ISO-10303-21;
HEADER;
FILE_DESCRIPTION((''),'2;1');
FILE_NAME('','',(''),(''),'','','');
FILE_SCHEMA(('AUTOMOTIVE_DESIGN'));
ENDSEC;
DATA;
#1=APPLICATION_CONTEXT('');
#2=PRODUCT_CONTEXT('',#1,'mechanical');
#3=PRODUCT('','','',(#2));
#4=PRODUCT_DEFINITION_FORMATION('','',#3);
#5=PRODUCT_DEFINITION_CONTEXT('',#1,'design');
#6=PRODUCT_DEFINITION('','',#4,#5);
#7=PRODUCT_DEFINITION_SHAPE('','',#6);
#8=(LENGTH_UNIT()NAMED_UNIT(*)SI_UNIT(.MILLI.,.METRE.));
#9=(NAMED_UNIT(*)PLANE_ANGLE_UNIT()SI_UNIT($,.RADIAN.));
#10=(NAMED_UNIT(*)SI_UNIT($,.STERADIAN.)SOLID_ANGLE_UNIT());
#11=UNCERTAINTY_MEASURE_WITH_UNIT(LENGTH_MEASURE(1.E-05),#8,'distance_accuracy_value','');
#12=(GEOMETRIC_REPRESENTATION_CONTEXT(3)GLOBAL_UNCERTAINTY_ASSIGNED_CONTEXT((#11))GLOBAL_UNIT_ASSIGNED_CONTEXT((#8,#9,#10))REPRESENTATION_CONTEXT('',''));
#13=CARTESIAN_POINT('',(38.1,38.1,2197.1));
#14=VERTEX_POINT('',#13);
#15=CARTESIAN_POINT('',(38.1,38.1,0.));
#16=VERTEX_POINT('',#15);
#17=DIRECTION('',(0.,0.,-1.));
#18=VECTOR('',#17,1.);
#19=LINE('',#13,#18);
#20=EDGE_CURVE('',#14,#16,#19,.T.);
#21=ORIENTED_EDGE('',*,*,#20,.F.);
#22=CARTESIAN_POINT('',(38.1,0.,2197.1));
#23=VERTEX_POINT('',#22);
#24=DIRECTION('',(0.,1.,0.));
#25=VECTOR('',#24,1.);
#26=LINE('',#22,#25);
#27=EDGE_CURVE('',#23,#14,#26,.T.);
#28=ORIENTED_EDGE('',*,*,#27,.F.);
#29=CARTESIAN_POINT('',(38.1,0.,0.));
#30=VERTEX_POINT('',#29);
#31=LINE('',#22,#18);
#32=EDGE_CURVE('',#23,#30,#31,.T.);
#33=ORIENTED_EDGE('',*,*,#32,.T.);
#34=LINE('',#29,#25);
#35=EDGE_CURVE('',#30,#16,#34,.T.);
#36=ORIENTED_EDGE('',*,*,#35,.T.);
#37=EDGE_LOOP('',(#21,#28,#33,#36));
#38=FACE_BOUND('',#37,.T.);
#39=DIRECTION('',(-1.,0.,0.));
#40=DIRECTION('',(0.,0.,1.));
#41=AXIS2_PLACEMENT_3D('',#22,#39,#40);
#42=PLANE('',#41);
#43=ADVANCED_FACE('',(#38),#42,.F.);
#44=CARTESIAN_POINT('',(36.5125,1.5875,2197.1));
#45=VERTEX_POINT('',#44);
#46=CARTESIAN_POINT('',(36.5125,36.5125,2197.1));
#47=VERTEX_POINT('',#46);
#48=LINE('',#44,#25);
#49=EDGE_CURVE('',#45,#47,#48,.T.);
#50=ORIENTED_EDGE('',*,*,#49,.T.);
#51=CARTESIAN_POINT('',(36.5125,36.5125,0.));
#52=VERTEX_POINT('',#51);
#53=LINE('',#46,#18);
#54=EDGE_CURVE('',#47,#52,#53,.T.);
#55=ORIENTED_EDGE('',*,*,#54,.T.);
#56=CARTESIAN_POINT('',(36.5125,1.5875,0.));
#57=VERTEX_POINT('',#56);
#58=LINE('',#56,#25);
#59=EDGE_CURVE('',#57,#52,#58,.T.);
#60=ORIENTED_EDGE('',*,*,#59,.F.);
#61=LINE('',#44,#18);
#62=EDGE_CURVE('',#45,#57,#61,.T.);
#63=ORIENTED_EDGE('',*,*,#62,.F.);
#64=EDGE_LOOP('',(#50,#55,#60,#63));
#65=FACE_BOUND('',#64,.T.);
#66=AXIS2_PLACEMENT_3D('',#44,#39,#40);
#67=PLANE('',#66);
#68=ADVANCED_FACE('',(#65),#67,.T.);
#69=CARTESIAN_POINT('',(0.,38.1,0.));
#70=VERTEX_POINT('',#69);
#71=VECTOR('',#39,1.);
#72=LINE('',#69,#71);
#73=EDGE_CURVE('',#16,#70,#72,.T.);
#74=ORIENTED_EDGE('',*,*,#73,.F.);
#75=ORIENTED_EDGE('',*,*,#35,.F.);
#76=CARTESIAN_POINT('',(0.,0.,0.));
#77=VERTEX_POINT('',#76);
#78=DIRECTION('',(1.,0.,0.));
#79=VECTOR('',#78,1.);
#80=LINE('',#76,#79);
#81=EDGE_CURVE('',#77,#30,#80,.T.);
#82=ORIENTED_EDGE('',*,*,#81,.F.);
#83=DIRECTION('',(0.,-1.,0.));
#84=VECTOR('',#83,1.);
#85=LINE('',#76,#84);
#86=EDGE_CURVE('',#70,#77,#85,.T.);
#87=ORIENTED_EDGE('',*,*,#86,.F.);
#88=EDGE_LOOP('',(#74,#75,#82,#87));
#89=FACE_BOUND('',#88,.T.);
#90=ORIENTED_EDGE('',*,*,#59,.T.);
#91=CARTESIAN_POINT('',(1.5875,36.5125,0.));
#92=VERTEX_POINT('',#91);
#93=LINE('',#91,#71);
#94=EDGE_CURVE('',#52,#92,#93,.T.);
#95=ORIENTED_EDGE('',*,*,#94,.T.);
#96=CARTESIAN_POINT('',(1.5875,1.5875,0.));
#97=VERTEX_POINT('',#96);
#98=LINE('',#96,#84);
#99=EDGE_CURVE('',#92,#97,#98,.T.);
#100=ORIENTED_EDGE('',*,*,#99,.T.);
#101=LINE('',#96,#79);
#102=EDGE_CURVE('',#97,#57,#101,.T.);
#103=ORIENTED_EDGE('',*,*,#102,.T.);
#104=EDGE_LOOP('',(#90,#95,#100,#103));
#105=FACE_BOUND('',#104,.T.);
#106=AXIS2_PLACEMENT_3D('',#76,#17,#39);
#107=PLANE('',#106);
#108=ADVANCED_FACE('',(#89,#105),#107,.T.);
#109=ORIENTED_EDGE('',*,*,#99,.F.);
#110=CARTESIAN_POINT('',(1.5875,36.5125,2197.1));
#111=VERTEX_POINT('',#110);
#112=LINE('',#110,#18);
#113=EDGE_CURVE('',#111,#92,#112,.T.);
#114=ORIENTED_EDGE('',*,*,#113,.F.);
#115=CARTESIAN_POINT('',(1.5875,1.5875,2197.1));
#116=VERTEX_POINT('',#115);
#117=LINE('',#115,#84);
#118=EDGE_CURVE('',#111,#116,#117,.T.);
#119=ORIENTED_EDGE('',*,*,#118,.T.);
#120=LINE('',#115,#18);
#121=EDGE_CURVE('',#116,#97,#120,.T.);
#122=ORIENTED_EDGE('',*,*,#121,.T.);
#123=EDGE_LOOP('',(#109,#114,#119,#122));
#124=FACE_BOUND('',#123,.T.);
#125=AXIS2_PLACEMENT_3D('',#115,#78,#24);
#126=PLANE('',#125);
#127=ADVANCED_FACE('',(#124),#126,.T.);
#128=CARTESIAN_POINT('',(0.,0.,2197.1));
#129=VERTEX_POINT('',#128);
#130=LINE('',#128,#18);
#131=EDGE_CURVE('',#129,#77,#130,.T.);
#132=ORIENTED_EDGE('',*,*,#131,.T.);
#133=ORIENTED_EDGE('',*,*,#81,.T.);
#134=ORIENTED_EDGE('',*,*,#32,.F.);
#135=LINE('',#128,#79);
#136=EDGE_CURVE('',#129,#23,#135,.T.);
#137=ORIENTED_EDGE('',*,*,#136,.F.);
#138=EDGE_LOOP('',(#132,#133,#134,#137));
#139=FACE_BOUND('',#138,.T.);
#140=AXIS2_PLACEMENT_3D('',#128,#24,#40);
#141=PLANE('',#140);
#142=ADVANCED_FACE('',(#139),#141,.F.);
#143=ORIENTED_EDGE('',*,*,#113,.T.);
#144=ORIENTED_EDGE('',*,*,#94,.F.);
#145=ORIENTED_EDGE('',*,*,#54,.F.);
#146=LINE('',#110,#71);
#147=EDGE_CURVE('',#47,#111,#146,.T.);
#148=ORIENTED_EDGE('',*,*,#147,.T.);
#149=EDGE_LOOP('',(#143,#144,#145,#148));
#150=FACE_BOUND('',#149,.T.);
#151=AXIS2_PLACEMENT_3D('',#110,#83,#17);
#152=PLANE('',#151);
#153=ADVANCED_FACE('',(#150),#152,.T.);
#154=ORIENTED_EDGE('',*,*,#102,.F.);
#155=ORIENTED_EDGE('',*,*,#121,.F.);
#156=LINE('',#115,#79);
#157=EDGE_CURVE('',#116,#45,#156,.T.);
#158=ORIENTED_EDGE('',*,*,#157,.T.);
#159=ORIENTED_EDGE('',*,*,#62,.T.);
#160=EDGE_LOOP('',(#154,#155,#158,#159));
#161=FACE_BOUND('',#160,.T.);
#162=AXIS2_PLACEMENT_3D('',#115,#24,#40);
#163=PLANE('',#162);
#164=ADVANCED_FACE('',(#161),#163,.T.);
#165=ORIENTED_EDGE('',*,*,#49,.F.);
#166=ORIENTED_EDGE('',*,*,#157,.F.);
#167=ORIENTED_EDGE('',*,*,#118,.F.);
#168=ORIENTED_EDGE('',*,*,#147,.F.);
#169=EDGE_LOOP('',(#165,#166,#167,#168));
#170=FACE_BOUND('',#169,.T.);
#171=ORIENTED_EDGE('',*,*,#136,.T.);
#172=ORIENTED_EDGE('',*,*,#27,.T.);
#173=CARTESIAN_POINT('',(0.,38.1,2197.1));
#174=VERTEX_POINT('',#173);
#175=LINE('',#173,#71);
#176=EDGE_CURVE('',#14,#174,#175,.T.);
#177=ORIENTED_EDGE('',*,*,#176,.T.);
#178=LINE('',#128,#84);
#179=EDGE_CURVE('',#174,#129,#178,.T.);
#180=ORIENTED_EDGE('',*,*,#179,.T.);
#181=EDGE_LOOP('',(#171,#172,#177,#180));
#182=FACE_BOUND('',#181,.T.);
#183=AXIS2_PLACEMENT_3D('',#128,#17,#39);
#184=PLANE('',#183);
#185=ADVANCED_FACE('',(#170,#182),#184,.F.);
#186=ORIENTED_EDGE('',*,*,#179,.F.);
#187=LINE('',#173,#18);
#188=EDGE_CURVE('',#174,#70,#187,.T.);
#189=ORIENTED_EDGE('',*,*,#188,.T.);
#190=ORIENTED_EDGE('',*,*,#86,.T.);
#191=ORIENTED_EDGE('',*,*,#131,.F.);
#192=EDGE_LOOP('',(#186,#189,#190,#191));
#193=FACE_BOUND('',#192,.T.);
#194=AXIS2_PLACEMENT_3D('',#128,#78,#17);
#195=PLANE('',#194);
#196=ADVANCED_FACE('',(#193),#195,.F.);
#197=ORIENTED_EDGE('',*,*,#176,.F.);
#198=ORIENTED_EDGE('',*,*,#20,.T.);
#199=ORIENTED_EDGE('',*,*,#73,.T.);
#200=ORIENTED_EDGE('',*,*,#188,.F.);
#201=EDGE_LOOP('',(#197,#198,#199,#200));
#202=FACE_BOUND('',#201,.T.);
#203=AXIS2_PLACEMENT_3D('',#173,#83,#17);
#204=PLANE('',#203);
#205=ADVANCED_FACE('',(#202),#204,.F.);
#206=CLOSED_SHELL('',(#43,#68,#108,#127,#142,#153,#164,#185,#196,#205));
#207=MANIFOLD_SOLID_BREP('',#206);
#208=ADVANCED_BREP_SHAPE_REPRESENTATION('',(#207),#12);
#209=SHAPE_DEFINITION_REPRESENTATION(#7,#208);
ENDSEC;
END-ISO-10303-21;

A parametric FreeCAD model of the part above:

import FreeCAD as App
import Part
import Sketcher

V = App.Vector
Q = App.Units.Quantity


def add_polygon(sketch, points):
    """Adds a closed chain of lines whose ends are joined by coincident constraints."""
    first, n = sketch.GeometryCount, len(points)
    for a, b in zip(points, points[1:] + points[:1]):
        sketch.addGeometry(Part.LineSegment(App.Vector(*a, 0), App.Vector(*b, 0)), False)
    for i in range(n):
        sketch.addConstraint(Sketcher.Constraint("Coincident", first + i, 2, first + (i + 1) % n, 1))

doc = App.newDocument("Part")
params = doc.addObject("Spreadsheet::Sheet", "Params")
for row, (alias, value) in enumerate([
    ("sketch1_width", "1.5 in"),
    ("sketch1_width2", "1.375 in"),
    ("pad1_length", "86.5 in"),
], start=1):
    params.set(f"A{row}", alias)
    params.set(f"B{row}", "=" + value)
    params.setAlias(f"B{row}", alias)

body = doc.addObject("PartDesign::Body", "Body")

# Sketch on XY plane
sketch1 = body.newObject("Sketcher::SketchObject", "Sketch")
sketch1.AttachmentSupport = (doc.getObject("XY_Plane"), [""])
sketch1.MapMode = "FlatFace"
add_polygon(sketch1, [(0, 38.1), (0, 0), (38.1, 0), (38.1, 38.1)])  # lines 0-3
add_polygon(sketch1, [(36.5125, 1.5875), (1.5875, 1.5875), (1.5875, 36.5125), (36.5125, 36.5125)])  # lines 4-7
sketch1.addConstraint(Sketcher.Constraint("Vertical", 0))
sketch1.addConstraint(Sketcher.Constraint("Horizontal", 1))
sketch1.addConstraint(Sketcher.Constraint("Vertical", 2))
sketch1.addConstraint(Sketcher.Constraint("Horizontal", 3))
sketch1.addConstraint(Sketcher.Constraint("Horizontal", 4))
sketch1.addConstraint(Sketcher.Constraint("Vertical", 5))
sketch1.addConstraint(Sketcher.Constraint("Horizontal", 6))
sketch1.addConstraint(Sketcher.Constraint("Vertical", 7))
sketch1.addConstraint(Sketcher.Constraint("Coincident", 0, 2, -1, 1))
sketch1.addConstraint(Sketcher.Constraint("Equal", 3, 0))
sketch1.addConstraint(Sketcher.Constraint("Equal", 6, 5))
sketch1.addConstraint(Sketcher.Constraint("DistanceX", 1, 1, 1, 2, Q("1.5 in")))
sketch1.addConstraint(Sketcher.Constraint("DistanceX", 4, 2, 4, 1, Q("1.375 in")))
sketch1.addConstraint(Sketcher.Constraint("DistanceX", -1, 1, 4, 2, Q("0.0625 in")))
sketch1.addConstraint(Sketcher.Constraint("DistanceY", -1, 1, 4, 2, Q("0.0625 in")))
sketch1.setExpression("Constraints[19]", "Params.sketch1_width")
sketch1.setExpression("Constraints[20]", "Params.sketch1_width2")
pad1 = body.newObject("PartDesign::Pad", "Pad")
pad1.Profile = sketch1
pad1.setExpression("Length", "Params.pad1_length")

doc.recompute()
